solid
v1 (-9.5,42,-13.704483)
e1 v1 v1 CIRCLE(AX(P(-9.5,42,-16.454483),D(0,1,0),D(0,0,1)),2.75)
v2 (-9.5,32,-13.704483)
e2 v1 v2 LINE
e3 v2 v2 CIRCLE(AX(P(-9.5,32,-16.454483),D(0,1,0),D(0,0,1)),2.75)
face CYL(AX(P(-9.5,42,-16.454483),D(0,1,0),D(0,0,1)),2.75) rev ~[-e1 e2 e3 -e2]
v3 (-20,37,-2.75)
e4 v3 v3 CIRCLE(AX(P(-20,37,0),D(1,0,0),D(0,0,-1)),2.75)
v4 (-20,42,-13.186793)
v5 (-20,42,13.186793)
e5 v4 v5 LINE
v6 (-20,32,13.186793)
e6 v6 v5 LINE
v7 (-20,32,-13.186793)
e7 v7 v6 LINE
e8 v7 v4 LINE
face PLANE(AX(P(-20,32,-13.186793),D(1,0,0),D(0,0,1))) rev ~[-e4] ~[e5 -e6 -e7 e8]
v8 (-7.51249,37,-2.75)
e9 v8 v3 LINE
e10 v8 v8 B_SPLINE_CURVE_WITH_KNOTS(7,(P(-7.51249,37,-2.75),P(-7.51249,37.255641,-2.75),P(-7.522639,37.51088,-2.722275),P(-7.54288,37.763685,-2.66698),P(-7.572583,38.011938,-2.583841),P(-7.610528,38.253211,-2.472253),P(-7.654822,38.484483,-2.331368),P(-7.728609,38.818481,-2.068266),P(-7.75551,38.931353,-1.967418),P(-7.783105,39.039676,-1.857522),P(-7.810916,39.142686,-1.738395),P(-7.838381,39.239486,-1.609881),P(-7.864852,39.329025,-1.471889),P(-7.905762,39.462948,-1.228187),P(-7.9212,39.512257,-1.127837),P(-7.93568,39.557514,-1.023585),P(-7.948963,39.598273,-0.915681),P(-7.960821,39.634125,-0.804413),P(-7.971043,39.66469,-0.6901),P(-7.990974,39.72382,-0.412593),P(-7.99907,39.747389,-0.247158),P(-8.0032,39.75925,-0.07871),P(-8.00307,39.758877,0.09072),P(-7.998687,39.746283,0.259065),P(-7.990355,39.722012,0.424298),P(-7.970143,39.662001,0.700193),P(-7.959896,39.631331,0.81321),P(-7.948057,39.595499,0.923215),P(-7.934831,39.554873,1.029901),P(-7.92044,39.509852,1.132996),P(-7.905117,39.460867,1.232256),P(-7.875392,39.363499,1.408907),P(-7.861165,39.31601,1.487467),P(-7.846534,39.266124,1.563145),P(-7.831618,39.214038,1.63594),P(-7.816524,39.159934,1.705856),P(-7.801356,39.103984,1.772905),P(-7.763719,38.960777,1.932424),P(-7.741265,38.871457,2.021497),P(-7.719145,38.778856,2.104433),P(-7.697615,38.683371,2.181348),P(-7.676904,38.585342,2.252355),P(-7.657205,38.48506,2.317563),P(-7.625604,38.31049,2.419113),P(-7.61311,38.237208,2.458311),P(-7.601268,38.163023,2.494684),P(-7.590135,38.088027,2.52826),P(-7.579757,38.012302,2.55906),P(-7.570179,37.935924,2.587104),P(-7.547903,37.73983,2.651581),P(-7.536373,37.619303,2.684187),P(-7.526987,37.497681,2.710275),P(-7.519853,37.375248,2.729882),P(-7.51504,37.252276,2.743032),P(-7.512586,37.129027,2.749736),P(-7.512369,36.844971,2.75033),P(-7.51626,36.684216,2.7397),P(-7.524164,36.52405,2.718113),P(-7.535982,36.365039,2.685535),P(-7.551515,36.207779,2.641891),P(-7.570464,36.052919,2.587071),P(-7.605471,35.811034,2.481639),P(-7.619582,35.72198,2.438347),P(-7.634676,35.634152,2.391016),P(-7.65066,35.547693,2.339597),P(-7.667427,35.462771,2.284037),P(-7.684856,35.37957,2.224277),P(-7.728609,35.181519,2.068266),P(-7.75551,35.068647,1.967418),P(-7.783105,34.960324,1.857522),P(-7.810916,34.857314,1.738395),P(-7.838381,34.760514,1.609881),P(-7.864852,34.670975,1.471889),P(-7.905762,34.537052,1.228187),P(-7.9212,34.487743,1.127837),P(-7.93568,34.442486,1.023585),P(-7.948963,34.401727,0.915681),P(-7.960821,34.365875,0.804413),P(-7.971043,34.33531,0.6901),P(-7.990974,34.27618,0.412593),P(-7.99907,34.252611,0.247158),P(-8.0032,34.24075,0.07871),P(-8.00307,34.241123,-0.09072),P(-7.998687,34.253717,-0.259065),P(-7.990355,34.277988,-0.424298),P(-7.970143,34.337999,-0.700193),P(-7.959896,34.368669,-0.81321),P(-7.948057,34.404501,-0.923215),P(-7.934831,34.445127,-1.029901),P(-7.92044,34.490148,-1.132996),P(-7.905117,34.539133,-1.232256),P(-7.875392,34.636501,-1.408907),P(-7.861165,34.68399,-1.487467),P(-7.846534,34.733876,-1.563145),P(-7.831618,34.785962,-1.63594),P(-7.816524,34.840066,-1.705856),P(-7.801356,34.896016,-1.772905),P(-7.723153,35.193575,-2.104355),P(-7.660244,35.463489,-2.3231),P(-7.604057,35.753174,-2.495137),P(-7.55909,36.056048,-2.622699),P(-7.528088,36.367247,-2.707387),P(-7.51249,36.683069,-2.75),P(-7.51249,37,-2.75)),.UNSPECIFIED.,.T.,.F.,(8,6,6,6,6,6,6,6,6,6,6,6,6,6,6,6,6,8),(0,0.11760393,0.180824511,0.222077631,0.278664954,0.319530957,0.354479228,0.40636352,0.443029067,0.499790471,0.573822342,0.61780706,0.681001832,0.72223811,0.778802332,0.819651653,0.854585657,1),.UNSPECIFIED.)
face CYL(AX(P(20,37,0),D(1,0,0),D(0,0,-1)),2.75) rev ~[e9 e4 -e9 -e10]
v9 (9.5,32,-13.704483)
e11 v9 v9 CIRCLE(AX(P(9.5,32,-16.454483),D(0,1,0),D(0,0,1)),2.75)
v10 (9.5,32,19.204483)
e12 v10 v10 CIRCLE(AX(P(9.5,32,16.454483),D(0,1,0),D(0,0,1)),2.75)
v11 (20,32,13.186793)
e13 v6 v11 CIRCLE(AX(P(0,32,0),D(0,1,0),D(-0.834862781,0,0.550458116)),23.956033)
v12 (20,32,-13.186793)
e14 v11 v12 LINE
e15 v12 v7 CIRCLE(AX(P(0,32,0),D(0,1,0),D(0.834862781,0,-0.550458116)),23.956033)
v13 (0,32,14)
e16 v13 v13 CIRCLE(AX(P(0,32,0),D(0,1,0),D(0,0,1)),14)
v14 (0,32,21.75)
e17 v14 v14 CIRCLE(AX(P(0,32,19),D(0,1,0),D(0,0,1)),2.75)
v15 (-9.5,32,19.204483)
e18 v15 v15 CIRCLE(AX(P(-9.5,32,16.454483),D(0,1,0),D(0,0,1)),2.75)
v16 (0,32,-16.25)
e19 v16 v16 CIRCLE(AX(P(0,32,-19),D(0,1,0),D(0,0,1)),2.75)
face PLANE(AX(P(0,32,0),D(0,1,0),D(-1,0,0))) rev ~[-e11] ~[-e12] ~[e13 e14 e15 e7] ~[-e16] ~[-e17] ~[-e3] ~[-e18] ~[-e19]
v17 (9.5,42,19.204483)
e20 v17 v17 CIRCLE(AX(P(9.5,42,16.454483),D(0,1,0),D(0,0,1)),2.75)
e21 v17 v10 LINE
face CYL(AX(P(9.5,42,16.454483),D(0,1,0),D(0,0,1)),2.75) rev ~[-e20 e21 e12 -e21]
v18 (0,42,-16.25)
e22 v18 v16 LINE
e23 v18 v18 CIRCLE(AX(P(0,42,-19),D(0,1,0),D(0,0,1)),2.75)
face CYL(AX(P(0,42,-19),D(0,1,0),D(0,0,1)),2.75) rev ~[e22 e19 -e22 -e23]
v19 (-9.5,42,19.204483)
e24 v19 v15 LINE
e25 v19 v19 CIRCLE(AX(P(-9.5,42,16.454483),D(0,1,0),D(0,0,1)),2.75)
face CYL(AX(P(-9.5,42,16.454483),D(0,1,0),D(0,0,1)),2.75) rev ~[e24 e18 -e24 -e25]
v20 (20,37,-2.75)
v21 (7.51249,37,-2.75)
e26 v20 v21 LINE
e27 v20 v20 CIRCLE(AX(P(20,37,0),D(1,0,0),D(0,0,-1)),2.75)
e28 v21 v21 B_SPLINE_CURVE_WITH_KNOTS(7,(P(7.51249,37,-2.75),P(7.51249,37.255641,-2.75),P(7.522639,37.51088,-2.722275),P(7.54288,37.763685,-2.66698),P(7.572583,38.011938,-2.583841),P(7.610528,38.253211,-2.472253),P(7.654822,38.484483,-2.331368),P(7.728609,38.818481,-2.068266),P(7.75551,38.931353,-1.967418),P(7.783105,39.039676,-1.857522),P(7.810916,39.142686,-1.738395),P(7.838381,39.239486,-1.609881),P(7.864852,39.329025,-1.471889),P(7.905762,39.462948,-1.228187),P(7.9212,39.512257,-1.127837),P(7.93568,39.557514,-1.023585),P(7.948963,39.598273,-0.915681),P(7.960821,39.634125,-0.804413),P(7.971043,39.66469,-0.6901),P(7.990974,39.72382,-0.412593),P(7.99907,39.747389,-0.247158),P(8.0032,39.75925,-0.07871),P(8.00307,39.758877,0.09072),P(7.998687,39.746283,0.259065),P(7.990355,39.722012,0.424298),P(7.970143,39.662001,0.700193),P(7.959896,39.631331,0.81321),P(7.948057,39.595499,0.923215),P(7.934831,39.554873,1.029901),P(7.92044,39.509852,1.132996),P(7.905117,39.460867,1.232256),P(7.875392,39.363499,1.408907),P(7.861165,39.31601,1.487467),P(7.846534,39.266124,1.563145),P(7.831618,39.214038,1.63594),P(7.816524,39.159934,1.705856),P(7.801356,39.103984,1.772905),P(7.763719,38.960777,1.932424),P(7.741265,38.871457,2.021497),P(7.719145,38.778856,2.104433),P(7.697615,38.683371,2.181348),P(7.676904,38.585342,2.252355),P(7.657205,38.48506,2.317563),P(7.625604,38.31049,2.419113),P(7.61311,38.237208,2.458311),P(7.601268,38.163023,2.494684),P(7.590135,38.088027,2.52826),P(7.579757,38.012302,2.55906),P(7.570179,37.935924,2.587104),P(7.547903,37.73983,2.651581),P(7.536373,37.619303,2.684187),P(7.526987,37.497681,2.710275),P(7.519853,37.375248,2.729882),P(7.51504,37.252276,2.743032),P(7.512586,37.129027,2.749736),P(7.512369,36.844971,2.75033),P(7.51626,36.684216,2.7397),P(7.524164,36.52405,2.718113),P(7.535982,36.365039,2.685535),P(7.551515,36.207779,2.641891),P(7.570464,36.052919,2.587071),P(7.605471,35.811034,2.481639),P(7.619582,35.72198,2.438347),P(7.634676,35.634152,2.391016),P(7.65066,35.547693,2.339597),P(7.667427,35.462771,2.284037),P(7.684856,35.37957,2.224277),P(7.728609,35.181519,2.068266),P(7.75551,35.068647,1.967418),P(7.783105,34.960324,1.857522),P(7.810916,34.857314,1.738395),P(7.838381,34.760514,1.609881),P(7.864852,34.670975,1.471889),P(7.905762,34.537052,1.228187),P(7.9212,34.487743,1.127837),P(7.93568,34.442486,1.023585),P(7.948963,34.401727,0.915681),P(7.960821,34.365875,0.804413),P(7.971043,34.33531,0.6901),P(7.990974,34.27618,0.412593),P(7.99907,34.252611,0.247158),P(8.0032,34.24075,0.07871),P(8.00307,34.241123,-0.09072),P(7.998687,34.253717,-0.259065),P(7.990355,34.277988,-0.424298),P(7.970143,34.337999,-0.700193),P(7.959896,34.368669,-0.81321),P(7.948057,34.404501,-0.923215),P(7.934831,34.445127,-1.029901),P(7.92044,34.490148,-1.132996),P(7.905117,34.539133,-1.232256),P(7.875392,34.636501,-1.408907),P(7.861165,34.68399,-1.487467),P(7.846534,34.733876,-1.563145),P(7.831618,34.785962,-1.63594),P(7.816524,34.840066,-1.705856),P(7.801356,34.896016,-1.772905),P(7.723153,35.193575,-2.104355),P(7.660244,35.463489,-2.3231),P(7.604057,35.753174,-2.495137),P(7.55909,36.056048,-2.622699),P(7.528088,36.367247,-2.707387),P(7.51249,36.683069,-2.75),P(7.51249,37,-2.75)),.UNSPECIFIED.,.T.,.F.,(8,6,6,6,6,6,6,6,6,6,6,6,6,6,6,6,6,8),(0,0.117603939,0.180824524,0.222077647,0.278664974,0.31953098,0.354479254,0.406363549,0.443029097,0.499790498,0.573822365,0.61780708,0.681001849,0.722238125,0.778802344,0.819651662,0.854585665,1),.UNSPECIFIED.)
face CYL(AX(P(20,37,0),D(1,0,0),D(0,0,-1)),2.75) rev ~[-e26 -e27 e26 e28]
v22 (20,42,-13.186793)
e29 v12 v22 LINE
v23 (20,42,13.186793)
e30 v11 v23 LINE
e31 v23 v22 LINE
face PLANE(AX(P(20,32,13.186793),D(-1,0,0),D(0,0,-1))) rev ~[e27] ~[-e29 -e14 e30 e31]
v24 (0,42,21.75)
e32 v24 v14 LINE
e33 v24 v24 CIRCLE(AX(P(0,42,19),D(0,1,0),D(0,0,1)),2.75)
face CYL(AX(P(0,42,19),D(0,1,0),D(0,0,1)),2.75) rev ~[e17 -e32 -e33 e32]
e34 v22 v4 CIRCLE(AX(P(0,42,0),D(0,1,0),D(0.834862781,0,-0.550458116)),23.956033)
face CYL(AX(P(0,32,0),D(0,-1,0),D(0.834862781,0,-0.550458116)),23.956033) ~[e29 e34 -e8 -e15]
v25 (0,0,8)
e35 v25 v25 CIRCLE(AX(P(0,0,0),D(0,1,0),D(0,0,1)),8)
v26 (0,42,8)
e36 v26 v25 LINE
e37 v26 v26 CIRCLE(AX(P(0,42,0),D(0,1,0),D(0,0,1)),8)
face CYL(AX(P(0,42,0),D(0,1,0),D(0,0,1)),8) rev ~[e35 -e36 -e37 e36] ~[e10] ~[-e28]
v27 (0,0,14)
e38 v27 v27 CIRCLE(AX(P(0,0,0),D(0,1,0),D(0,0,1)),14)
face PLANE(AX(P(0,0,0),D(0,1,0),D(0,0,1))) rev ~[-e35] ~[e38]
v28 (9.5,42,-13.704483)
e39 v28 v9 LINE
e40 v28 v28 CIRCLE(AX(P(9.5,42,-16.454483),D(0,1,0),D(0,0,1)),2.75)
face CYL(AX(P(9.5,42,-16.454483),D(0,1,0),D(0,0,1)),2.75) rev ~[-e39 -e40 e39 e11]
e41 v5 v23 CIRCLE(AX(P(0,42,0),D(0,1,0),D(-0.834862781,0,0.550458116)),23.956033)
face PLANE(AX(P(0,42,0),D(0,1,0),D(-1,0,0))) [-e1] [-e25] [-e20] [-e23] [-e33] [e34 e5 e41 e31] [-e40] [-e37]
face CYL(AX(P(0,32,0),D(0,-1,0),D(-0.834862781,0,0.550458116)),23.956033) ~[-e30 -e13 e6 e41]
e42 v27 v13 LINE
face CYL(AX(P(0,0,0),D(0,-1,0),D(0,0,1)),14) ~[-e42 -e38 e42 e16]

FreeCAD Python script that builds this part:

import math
import FreeCAD as App
import Part
import Sketcher
from FreeCAD import Vector

doc = App.newDocument("Part")
body = doc.addObject("PartDesign::Body", "Body")

sketch1 = doc.addObject("Sketcher::SketchObject", "Sketch")
body.addObject(sketch1)
sketch1.AttachmentSupport = (doc.XZ_Plane, [""])
sketch1.MapMode = "FlatFace"
sketch1.addGeometry(Part.Circle(Vector(0, 0, 0), Vector(0, 0, 1), 14), False)
sketch1.addConstraint([
    Sketcher.Constraint("Coincident", 0, 3, -1, 1),
    Sketcher.Constraint("Diameter", 0, 28.0),
])
pad1 = doc.addObject("PartDesign::Pad", "Pad")
body.addObject(pad1)
pad1.Profile = sketch1
pad1.Length = 32
pad1.Reversed = True

sketch2 = doc.addObject("Sketcher::SketchObject", "Sketch001")
body.addObject(sketch2)
sketch2.AttachmentSupport = (doc.XZ_Plane, [""])
sketch2.MapMode = "FlatFace"
sketch2.AttachmentOffset = App.Placement(Vector(0, 0, -32), App.Rotation())
sketch2.addGeometry([
    Part.LineSegment(Vector(20, 13, 0), Vector(20, -13, 0)),
    Part.ArcOfCircle(Part.Circle(Vector(0, 0, 0), Vector(0, 0, 1), 24), math.radians(-147), math.radians(-33)),
    Part.LineSegment(Vector(-20, -13, 0), Vector(-20, 13, 0)),
    Part.ArcOfCircle(Part.Circle(Vector(0, 0, 0), Vector(0, 0, 1), 24), math.radians(33), math.radians(147)),
], False)
sketch2.addConstraint([
    Sketcher.Constraint("Coincident", 0, 2, 1, 2),
    Sketcher.Constraint("Coincident", 1, 1, 2, 1),
    Sketcher.Constraint("Coincident", 2, 2, 3, 2),
    Sketcher.Constraint("Coincident", 3, 1, 0, 1),
    Sketcher.Constraint("Vertical", 0),
    Sketcher.Constraint("Vertical", 2),
    Sketcher.Constraint("Coincident", 1, 3, -1, 1),
    Sketcher.Constraint("Coincident", 3, 3, -1, 1),
    Sketcher.Constraint("Equal", 1, 3),
    Sketcher.Constraint("Horizontal", 0, 2, 1, 1),
    Sketcher.Constraint("DistanceX", -1, 1, 0, 2, 20.0),
    Sketcher.Constraint("Radius", 1, 23.956033),
])
pad2 = doc.addObject("PartDesign::Pad", "Pad001")
body.addObject(pad2)
pad2.Profile = sketch2
pad2.Length = 10
pad2.Reversed = True

sketch3 = doc.addObject("Sketcher::SketchObject", "Sketch002")
body.addObject(sketch3)
sketch3.AttachmentSupport = (doc.XZ_Plane, [""])
sketch3.MapMode = "FlatFace"
sketch3.AttachmentOffset = App.Placement(Vector(0, 0, -42), App.Rotation())
sketch3.addGeometry(Part.Circle(Vector(0, 0, 0), Vector(0, 0, 1), 8), False)
sketch3.addConstraint([
    Sketcher.Constraint("Coincident", 0, 3, -1, 1),
    Sketcher.Constraint("Diameter", 0, 16.0),
])
pocket1 = doc.addObject("PartDesign::Pocket", "Pocket")
body.addObject(pocket1)
pocket1.Profile = sketch3
pocket1.Type = "ThroughAll"
pocket1.Reversed = True

sketch4 = doc.addObject("Sketcher::SketchObject", "Sketch003")
body.addObject(sketch4)
sketch4.AttachmentSupport = (doc.XZ_Plane, [""])
sketch4.MapMode = "FlatFace"
sketch4.AttachmentOffset = App.Placement(Vector(0, 0, -42), App.Rotation())
sketch4.addGeometry([
    Part.Circle(Vector(0, 19, 0), Vector(0, 0, 1), 2.8),
    Part.Circle(Vector(-9.5, 16.5, 0), Vector(0, 0, 1), 2.8),
    Part.Circle(Vector(-9.5, -16.5, 0), Vector(0, 0, 1), 2.8),
    Part.Circle(Vector(0, -19, 0), Vector(0, 0, 1), 2.8),
    Part.Circle(Vector(9.5, -16.5, 0), Vector(0, 0, 1), 2.8),
    Part.Circle(Vector(9.5, 16.5, 0), Vector(0, 0, 1), 2.8),
], False)
sketch4.addConstraint([
    Sketcher.Constraint("Equal", 0, 1),
    Sketcher.Constraint("Equal", 1, 2),
    Sketcher.Constraint("Equal", 2, 3),
    Sketcher.Constraint("Equal", 3, 4),
    Sketcher.Constraint("Equal", 4, 5),
    Sketcher.Constraint("Symmetric", 0, 3, 3, 3, -1, 1),
    Sketcher.Constraint("Symmetric", 1, 3, 4, 3, -1, 1),
    Sketcher.Constraint("Symmetric", 2, 3, 5, 3, -1, 1),
    Sketcher.Constraint("Symmetric", 2, 3, 4, 3, -2),
    Sketcher.Constraint("PointOnObject", 0, 3, -2),
    Sketcher.Constraint("Diameter", 0, 5.5),
    Sketcher.Constraint("DistanceY", -1, 1, 0, 3, 19.0),
    Sketcher.Constraint("DistanceX", 2, 3, 4, 3, 19.0),
    Sketcher.Constraint("DistanceY", -1, 1, 1, 3, 16.454483),
])
pocket2 = doc.addObject("PartDesign::Pocket", "Pocket001")
body.addObject(pocket2)
pocket2.Profile = sketch4
pocket2.Type = "ThroughAll"
pocket2.Reversed = True

sketch5 = doc.addObject("Sketcher::SketchObject", "Sketch004")
body.addObject(sketch5)
sketch5.AttachmentSupport = (doc.YZ_Plane, [""])
sketch5.MapMode = "FlatFace"
sketch5.AttachmentOffset = App.Placement(Vector(0, 0, 20), App.Rotation())
sketch5.addGeometry(Part.Circle(Vector(37, 0, 0), Vector(0, 0, 1), 2.8), False)
sketch5.addConstraint([
    Sketcher.Constraint("PointOnObject", 0, 3, -1),
    Sketcher.Constraint("Diameter", 0, 5.5),
    Sketcher.Constraint("DistanceX", -1, 1, 0, 3, 37.0),
])
pocket3 = doc.addObject("PartDesign::Pocket", "Pocket002")
body.addObject(pocket3)
pocket3.Profile = sketch5
pocket3.Type = "ThroughAll"

doc.recompute()
